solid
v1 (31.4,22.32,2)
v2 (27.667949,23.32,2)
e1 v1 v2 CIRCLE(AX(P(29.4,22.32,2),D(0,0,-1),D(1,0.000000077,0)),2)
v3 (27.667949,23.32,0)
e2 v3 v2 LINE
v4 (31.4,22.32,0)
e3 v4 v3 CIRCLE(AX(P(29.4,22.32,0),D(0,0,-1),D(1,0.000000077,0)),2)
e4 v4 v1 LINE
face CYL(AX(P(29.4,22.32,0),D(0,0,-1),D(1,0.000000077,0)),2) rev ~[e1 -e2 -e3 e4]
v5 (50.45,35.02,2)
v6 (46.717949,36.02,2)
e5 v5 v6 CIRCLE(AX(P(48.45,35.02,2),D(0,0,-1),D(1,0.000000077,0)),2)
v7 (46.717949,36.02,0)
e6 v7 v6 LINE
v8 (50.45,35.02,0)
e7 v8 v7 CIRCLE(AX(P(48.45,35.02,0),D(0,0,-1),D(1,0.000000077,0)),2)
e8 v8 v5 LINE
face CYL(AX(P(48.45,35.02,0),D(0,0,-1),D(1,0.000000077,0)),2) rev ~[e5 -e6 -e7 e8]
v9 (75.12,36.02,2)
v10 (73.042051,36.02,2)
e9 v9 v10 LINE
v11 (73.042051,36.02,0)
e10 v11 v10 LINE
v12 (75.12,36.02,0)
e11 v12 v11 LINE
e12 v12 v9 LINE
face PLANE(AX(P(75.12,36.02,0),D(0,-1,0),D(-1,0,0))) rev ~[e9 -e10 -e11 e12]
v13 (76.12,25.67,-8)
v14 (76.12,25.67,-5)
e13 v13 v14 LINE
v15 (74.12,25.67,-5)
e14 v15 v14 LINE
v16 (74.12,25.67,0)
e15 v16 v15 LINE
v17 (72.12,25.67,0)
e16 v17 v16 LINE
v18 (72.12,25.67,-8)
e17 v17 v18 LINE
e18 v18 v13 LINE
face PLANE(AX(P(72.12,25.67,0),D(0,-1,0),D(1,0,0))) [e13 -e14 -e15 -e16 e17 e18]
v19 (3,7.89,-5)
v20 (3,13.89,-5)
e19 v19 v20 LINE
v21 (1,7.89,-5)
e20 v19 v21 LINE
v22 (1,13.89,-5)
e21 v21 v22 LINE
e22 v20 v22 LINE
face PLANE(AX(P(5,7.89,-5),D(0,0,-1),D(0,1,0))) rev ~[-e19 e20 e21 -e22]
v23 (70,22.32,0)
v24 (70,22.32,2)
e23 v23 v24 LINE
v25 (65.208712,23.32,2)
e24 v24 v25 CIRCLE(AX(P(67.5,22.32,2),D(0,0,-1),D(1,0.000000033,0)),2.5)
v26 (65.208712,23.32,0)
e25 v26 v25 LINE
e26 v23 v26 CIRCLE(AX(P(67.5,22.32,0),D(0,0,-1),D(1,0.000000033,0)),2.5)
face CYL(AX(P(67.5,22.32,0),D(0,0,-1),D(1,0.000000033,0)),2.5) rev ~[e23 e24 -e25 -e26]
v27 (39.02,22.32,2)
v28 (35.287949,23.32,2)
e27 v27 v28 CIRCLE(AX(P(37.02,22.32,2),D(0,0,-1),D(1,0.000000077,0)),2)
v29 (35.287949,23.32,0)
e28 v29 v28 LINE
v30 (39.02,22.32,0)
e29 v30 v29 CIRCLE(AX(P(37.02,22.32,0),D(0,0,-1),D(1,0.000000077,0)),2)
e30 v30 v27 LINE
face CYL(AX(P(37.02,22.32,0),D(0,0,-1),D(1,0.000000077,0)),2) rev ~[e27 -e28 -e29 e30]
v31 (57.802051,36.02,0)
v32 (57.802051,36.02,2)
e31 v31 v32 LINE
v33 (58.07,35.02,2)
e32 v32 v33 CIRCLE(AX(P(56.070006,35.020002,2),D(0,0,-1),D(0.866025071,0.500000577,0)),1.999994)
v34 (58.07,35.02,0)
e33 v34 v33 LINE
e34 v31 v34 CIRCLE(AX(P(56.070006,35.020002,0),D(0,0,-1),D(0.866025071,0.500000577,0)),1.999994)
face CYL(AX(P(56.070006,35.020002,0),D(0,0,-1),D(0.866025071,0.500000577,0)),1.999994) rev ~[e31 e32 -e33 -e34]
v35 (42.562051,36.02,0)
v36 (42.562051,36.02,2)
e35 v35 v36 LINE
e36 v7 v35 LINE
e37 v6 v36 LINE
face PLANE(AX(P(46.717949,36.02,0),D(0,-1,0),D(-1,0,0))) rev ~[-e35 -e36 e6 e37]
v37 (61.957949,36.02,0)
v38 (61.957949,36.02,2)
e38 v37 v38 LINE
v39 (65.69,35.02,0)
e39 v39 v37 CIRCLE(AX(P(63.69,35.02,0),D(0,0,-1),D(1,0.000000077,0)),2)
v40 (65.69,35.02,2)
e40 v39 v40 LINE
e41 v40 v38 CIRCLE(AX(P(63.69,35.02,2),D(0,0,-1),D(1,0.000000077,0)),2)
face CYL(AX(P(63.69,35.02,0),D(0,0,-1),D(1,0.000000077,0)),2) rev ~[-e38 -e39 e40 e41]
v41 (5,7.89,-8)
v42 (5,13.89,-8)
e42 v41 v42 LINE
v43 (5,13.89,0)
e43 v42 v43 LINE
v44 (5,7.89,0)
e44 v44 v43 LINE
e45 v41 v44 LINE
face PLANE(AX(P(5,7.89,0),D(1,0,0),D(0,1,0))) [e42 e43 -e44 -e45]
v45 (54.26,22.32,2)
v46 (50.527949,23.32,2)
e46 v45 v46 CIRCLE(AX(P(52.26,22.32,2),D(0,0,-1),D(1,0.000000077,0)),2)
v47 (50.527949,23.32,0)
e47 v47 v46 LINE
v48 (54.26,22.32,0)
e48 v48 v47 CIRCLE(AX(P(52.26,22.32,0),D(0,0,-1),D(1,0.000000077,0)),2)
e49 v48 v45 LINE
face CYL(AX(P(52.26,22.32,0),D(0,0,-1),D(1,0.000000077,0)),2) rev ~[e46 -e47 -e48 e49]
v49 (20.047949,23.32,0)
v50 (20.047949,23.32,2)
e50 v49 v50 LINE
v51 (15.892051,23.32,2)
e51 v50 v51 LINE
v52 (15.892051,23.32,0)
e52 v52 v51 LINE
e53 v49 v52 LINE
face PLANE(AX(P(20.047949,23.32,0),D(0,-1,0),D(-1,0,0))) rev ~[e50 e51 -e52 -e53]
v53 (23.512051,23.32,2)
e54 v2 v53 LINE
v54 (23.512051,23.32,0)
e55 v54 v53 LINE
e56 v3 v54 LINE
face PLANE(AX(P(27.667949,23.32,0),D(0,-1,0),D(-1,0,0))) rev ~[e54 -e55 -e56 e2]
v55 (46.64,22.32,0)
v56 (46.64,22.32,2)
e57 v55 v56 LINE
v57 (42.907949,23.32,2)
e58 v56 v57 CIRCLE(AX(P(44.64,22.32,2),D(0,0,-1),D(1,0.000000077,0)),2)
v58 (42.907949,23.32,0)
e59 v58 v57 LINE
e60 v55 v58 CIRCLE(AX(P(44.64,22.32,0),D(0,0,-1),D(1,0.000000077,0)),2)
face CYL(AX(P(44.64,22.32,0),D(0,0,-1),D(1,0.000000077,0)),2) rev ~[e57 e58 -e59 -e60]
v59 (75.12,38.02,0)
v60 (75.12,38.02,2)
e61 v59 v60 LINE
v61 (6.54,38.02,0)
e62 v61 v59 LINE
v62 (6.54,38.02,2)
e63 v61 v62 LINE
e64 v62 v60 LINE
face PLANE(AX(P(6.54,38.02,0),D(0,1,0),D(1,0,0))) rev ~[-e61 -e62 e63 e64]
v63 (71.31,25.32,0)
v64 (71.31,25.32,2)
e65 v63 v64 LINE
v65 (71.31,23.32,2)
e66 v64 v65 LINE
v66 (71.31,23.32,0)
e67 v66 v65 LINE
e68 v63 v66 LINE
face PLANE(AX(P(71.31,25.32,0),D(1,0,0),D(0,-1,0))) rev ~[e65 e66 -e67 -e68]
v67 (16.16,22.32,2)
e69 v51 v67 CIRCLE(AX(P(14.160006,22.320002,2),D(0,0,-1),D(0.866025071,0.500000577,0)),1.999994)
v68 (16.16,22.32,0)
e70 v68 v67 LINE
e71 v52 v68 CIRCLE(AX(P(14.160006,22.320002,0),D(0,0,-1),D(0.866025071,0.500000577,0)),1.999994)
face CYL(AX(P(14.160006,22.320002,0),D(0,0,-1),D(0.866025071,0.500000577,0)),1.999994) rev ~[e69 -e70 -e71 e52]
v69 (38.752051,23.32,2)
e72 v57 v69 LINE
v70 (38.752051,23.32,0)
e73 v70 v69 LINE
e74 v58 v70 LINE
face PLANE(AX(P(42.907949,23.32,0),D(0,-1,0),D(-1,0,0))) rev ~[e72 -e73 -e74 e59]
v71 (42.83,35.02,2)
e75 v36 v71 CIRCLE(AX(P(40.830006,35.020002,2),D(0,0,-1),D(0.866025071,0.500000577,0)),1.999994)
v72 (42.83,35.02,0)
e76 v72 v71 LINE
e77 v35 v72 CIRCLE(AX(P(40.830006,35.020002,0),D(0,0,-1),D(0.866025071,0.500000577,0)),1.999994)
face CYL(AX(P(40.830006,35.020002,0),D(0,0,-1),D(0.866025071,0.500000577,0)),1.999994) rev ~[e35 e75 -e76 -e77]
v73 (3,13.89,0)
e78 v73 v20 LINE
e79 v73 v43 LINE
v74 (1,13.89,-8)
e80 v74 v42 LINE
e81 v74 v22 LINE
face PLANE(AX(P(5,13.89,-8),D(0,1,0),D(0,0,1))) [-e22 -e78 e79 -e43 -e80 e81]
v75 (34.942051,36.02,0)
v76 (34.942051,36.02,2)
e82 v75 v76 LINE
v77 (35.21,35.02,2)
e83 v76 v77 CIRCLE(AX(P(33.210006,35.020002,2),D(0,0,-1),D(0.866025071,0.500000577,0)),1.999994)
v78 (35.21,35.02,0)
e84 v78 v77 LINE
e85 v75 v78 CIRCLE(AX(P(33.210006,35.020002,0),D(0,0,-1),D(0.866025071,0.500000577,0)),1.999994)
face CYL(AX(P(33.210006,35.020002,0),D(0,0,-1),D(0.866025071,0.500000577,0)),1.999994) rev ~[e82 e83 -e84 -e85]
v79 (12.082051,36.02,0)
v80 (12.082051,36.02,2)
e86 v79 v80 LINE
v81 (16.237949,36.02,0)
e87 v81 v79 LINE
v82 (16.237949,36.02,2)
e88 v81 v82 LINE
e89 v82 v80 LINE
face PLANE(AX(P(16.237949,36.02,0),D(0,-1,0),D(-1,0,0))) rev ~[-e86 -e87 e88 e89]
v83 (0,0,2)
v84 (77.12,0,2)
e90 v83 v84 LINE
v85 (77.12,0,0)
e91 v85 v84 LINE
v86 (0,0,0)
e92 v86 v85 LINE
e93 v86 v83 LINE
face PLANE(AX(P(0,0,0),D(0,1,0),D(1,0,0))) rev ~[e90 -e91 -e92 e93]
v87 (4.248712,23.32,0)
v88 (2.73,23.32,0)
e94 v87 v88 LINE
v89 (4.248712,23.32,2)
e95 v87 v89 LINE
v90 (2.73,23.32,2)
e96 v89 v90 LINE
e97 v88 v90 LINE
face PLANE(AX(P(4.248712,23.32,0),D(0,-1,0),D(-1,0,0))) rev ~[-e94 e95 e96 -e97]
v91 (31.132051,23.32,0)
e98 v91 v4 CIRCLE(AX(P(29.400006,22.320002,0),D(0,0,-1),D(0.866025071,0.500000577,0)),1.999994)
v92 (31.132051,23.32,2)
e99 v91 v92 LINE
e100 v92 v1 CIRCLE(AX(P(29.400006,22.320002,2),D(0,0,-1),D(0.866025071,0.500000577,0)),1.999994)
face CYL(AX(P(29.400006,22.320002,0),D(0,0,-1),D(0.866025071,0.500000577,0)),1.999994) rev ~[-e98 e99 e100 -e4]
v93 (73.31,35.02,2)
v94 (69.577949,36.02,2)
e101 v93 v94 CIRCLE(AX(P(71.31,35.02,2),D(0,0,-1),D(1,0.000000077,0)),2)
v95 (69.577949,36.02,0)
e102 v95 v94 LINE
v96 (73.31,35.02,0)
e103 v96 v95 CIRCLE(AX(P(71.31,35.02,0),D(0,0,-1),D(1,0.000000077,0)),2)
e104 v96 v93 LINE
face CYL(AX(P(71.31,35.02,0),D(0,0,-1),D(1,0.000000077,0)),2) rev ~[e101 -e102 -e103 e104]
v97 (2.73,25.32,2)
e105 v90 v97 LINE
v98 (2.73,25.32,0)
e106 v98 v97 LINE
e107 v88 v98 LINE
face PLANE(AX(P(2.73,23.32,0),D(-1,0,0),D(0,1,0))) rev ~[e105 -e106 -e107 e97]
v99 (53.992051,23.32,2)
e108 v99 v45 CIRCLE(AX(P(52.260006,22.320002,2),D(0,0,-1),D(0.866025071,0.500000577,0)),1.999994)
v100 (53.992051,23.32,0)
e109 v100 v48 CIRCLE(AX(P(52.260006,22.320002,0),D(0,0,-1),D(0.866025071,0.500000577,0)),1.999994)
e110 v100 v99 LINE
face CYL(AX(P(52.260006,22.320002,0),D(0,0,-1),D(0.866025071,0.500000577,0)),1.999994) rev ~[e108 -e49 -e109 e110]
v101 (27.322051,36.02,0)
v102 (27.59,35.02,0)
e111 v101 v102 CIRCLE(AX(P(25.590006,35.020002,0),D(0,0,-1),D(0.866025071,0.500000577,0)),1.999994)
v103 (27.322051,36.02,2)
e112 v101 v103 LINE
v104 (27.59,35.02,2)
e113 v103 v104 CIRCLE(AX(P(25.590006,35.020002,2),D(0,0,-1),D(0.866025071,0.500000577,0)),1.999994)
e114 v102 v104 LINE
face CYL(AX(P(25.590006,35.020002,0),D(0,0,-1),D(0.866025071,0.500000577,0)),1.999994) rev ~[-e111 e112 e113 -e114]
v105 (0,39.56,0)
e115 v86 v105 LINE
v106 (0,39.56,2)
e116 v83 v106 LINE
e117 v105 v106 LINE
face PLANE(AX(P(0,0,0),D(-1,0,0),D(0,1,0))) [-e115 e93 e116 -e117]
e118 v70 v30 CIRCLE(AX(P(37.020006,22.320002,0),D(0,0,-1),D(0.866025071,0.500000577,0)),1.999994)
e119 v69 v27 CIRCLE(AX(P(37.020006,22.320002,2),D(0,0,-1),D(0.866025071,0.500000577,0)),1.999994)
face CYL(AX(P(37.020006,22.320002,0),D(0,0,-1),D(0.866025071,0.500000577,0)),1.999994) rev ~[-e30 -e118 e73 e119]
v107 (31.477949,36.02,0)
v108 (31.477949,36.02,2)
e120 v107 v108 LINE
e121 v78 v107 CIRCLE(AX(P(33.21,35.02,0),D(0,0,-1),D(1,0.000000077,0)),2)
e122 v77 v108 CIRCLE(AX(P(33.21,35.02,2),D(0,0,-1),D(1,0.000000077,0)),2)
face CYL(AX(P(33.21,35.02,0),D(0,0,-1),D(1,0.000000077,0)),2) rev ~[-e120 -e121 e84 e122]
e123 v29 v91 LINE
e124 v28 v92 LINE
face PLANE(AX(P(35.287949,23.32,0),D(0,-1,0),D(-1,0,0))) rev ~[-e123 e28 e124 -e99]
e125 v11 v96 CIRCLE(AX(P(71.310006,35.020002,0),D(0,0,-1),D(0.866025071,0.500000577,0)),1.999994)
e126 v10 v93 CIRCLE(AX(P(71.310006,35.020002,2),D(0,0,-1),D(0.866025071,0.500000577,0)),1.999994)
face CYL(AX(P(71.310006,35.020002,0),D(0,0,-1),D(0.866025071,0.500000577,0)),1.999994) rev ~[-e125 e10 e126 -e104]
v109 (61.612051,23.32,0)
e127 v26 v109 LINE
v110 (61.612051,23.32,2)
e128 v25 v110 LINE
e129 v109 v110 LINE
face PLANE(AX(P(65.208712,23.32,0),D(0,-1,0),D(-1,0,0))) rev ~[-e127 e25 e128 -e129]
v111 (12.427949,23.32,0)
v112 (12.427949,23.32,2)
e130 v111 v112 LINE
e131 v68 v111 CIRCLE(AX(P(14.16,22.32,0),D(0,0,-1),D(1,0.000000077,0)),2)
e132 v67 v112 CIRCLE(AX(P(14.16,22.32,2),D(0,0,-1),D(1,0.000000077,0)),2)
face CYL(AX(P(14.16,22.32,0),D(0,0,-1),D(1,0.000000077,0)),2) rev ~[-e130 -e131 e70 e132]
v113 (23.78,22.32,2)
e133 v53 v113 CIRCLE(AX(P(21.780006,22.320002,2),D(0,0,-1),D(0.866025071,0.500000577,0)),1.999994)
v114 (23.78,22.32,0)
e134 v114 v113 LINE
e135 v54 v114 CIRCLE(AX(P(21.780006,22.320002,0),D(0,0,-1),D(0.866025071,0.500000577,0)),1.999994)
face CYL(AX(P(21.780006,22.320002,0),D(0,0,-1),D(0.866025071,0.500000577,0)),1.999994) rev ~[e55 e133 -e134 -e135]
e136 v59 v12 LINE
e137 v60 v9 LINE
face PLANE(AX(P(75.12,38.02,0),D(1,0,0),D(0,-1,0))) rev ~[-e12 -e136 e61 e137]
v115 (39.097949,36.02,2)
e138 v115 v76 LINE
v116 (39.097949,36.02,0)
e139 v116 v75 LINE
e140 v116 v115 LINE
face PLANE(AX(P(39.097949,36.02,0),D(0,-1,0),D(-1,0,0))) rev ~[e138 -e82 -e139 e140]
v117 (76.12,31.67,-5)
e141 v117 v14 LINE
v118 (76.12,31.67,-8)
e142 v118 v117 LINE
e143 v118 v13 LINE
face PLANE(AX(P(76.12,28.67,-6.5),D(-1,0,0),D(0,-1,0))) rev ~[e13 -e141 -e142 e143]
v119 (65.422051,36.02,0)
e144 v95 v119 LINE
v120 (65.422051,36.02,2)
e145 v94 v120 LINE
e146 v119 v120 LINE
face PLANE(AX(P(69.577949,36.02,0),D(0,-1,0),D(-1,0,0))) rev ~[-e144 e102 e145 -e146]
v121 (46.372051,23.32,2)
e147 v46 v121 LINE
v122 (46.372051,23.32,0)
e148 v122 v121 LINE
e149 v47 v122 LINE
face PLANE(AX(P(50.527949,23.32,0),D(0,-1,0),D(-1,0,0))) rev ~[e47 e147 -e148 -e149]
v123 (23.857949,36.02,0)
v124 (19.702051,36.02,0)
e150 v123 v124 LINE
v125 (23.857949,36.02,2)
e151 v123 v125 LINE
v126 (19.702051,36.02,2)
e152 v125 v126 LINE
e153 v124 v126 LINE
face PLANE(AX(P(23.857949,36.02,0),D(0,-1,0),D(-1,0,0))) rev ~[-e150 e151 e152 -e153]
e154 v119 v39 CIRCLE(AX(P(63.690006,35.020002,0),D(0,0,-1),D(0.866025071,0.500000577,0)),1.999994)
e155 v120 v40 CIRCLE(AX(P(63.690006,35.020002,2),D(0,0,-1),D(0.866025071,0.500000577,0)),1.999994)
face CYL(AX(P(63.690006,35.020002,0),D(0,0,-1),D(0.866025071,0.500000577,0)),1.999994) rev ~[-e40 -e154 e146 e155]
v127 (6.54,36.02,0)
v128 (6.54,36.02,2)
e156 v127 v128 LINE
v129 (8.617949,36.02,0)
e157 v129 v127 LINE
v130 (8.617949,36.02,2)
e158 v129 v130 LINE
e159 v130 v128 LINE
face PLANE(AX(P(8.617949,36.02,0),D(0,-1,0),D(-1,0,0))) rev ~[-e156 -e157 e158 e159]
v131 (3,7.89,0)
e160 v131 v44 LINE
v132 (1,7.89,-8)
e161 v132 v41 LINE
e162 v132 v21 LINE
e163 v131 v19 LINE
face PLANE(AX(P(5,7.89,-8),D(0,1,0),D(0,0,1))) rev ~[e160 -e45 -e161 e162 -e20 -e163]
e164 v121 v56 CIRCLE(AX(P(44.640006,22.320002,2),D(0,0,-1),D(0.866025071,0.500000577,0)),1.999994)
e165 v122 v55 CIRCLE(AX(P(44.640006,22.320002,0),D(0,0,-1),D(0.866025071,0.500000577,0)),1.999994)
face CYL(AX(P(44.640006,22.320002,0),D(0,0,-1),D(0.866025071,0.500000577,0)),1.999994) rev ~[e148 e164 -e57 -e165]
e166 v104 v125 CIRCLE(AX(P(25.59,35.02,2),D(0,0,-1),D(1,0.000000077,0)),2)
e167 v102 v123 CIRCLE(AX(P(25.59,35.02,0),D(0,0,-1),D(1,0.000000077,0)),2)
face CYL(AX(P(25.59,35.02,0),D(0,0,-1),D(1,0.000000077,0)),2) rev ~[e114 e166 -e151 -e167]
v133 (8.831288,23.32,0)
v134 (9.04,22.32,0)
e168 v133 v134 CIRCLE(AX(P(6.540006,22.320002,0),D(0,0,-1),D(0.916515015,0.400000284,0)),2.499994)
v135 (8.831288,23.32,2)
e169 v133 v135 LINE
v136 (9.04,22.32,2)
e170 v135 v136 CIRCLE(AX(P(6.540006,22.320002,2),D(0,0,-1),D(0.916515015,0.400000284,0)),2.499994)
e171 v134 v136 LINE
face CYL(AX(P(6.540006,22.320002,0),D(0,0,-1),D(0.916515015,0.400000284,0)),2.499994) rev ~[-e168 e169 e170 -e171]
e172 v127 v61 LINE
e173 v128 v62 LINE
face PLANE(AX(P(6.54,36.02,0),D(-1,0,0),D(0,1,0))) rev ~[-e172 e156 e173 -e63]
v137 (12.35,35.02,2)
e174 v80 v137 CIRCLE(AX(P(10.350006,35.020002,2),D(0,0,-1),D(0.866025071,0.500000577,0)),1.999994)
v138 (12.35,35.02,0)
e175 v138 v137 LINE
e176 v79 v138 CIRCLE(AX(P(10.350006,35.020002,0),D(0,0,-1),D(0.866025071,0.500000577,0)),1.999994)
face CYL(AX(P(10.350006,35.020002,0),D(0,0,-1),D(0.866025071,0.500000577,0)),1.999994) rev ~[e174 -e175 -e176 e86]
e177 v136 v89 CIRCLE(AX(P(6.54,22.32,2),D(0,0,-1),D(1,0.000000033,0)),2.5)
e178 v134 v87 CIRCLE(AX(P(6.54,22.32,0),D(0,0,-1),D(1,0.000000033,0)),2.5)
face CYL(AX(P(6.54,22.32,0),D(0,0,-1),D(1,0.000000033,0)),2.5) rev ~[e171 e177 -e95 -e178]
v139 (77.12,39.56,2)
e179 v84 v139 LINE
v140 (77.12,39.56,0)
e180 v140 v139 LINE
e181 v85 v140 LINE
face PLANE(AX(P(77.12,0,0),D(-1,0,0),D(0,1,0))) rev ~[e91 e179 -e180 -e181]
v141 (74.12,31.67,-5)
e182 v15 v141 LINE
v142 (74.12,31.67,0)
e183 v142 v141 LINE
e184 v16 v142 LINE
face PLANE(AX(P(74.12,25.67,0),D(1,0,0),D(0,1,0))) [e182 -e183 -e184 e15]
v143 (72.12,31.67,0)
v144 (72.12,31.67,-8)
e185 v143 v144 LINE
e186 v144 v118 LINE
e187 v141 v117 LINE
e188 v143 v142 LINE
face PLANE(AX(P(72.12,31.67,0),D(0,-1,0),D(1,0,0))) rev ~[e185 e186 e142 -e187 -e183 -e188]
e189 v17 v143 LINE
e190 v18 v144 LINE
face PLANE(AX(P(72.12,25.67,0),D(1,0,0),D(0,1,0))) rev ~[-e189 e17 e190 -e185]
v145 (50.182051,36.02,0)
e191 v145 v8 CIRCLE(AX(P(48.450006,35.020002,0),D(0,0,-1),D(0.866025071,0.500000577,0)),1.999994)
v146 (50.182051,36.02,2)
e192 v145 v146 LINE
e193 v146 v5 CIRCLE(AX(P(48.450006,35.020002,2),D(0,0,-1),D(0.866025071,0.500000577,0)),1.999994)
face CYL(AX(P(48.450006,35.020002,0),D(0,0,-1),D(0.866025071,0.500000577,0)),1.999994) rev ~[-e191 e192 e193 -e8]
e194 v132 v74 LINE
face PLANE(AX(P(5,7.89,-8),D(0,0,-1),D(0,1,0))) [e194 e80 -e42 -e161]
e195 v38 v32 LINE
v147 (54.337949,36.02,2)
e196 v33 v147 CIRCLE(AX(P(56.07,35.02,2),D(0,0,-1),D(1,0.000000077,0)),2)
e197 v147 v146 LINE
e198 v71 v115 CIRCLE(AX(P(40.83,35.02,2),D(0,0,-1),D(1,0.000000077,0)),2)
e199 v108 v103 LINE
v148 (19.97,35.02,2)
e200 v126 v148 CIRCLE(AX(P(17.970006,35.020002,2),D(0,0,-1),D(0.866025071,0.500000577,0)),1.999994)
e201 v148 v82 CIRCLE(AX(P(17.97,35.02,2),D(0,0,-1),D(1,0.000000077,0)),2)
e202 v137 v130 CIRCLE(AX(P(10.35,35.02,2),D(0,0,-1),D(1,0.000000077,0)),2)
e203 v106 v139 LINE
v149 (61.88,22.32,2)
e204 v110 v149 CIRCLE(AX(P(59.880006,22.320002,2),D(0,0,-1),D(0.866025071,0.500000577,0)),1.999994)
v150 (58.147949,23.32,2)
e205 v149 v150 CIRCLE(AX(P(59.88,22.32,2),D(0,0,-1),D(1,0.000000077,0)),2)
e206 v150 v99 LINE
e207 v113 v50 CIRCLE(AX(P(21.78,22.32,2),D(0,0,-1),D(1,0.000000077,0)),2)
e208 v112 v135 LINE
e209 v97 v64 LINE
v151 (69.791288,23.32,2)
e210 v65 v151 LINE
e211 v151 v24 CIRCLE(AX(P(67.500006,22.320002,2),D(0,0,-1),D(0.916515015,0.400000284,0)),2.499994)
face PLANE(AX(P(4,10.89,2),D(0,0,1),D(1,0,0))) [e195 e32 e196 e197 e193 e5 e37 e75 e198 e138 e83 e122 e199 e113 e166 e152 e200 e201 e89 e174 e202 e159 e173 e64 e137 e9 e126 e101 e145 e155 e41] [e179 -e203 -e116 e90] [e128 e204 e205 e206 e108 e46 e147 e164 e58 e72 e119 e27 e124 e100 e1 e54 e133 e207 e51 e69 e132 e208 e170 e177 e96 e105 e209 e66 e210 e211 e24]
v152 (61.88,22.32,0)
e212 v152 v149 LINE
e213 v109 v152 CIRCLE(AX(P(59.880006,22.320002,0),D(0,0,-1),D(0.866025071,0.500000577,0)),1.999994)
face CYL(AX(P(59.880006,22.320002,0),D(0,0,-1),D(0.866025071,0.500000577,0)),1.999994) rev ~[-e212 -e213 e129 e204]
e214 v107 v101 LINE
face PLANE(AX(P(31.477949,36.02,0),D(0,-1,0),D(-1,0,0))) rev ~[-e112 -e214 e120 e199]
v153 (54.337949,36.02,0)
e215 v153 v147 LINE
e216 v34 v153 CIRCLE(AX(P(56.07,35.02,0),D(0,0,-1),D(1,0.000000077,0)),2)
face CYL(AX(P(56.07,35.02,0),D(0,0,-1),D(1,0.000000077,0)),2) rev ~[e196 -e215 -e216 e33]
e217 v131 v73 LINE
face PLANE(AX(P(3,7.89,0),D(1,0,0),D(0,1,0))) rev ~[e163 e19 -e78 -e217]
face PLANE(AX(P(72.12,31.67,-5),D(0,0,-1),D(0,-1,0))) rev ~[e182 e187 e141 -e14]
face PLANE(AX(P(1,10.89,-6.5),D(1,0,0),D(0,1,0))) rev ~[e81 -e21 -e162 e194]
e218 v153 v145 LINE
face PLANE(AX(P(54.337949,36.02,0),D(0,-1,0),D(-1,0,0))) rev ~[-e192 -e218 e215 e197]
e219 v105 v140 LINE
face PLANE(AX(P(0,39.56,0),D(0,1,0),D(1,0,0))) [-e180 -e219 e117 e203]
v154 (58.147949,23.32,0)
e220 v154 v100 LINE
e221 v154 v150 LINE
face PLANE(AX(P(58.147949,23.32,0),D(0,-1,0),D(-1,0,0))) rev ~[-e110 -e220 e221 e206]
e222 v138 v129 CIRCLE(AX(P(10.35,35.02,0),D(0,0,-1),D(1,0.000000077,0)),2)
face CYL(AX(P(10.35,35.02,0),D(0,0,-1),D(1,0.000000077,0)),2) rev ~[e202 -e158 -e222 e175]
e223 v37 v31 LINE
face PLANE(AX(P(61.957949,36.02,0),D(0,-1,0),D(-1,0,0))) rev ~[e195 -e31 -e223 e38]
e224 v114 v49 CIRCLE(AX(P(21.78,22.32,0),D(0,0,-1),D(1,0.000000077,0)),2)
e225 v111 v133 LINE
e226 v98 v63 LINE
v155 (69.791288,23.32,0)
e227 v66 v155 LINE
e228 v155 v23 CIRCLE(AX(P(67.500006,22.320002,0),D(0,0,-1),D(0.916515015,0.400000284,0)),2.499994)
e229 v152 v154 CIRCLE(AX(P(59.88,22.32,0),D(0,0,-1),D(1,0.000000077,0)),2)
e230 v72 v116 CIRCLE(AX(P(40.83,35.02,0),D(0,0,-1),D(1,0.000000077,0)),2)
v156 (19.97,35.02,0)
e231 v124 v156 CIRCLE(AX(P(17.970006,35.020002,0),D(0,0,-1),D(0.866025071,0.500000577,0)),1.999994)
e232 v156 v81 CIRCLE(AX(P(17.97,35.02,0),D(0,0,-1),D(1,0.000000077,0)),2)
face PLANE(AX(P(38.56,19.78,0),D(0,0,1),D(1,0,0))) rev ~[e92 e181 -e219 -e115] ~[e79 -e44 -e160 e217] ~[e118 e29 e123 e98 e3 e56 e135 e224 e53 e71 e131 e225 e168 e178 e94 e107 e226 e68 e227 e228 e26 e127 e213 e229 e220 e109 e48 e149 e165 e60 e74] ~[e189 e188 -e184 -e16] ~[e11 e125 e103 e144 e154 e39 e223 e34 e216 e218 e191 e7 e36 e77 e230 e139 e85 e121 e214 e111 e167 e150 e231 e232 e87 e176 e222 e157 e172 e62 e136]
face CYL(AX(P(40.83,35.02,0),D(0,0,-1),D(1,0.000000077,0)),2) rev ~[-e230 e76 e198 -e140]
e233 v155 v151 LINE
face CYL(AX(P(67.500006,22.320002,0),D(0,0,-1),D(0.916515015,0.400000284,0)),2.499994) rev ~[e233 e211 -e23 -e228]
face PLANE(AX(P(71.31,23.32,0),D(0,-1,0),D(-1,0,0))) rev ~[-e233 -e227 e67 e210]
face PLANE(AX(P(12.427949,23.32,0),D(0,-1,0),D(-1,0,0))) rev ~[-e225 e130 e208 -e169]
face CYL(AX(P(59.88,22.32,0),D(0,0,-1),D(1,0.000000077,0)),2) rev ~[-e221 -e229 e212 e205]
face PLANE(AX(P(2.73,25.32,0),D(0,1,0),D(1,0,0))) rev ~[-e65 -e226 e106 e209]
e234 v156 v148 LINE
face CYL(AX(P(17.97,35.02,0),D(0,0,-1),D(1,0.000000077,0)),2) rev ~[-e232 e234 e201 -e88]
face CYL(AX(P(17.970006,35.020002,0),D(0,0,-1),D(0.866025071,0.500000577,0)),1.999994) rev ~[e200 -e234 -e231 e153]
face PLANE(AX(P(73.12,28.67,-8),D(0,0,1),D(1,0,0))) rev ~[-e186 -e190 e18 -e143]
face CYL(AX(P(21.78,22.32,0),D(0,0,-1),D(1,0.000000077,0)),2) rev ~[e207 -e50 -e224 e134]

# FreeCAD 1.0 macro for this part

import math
import FreeCAD as App
import Part
import Sketcher
from FreeCAD import Vector
Q = App.Units.Quantity


def add_polygon(sketch, points):
    """Adds a closed chain of lines whose ends are joined by coincident constraints."""
    first, n = sketch.GeometryCount, len(points)
    for a, b in zip(points, points[1:] + points[:1]):
        sketch.addGeometry(Part.LineSegment(App.Vector(*a, 0), App.Vector(*b, 0)), False)
    for i in range(n):
        sketch.addConstraint(Sketcher.Constraint("Coincident", first + i, 2, first + (i + 1) % n, 1))

doc = App.newDocument("Part")
body = doc.addObject("PartDesign::Body", "Body")

# Sketch on XY plane
sketch1 = body.newObject("Sketcher::SketchObject", "Sketch")
sketch1.AttachmentSupport = (doc.getObject("XY_Plane"), [""])
sketch1.MapMode = "FlatFace"
add_polygon(sketch1, [(0, 39.6), (0, 0), (77.1, 0), (77.1, 39.6)])  # lines 0-3
add_polygon(sketch1, [(5, 7.9), (3, 7.9), (3, 13.9), (5, 13.9)])  # lines 4-7
sketch1.addGeometry(Part.LineSegment(Vector(20, 23.3, 0), Vector(15.9, 23.3, 0)), False)  # 8
sketch1.addGeometry(Part.ArcOfCircle(Part.Circle(Vector(14.2, 22.3, 0), Vector(0, 0, 1), 2), math.radians(0), math.radians(30)), False)  # 9
sketch1.addGeometry(Part.ArcOfCircle(Part.Circle(Vector(14.2, 22.3, 0), Vector(0, 0, 1), 2), math.radians(150), math.radians(360)), False)  # 10
sketch1.addGeometry(Part.LineSegment(Vector(12.4, 23.3, 0), Vector(8.8, 23.3, 0)), False)  # 11
sketch1.addGeometry(Part.ArcOfCircle(Part.Circle(Vector(6.5, 22.3, 0), Vector(0, 0, 1), 2.5), math.radians(0), math.radians(24)), False)  # 12
sketch1.addGeometry(Part.ArcOfCircle(Part.Circle(Vector(6.5, 22.3, 0), Vector(0, 0, 1), 2.5), math.radians(156), math.radians(360)), False)  # 13
sketch1.addGeometry(Part.LineSegment(Vector(4.2, 23.3, 0), Vector(2.7, 23.3, 0)), False)  # 14
sketch1.addGeometry(Part.LineSegment(Vector(2.7, 23.3, 0), Vector(2.7, 25.3, 0)), False)  # 15
sketch1.addGeometry(Part.LineSegment(Vector(2.7, 25.3, 0), Vector(71.3, 25.3, 0)), False)  # 16
sketch1.addGeometry(Part.LineSegment(Vector(71.3, 25.3, 0), Vector(71.3, 23.3, 0)), False)  # 17
sketch1.addGeometry(Part.LineSegment(Vector(71.3, 23.3, 0), Vector(69.8, 23.3, 0)), False)  # 18
sketch1.addGeometry(Part.ArcOfCircle(Part.Circle(Vector(67.5, 22.3, 0), Vector(0, 0, 1), 2.5), math.radians(0), math.radians(24)), False)  # 19
sketch1.addGeometry(Part.ArcOfCircle(Part.Circle(Vector(67.5, 22.3, 0), Vector(0, 0, 1), 2.5), math.radians(156), math.radians(360)), False)  # 20
sketch1.addGeometry(Part.LineSegment(Vector(65.2, 23.3, 0), Vector(61.6, 23.3, 0)), False)  # 21
sketch1.addGeometry(Part.ArcOfCircle(Part.Circle(Vector(59.9, 22.3, 0), Vector(0, 0, 1), 2), math.radians(0), math.radians(30)), False)  # 22
sketch1.addGeometry(Part.ArcOfCircle(Part.Circle(Vector(59.9, 22.3, 0), Vector(0, 0, 1), 2), math.radians(150), math.radians(360)), False)  # 23
sketch1.addGeometry(Part.LineSegment(Vector(58.1, 23.3, 0), Vector(54, 23.3, 0)), False)  # 24
sketch1.addGeometry(Part.ArcOfCircle(Part.Circle(Vector(52.3, 22.3, 0), Vector(0, 0, 1), 2), math.radians(0), math.radians(30)), False)  # 25
sketch1.addGeometry(Part.ArcOfCircle(Part.Circle(Vector(52.3, 22.3, 0), Vector(0, 0, 1), 2), math.radians(150), math.radians(360)), False)  # 26
sketch1.addGeometry(Part.LineSegment(Vector(50.5, 23.3, 0), Vector(46.4, 23.3, 0)), False)  # 27
sketch1.addGeometry(Part.ArcOfCircle(Part.Circle(Vector(44.6, 22.3, 0), Vector(0, 0, 1), 2), math.radians(0), math.radians(30)), False)  # 28
sketch1.addGeometry(Part.ArcOfCircle(Part.Circle(Vector(44.6, 22.3, 0), Vector(0, 0, 1), 2), math.radians(150), math.radians(360)), False)  # 29
sketch1.addGeometry(Part.LineSegment(Vector(42.9, 23.3, 0), Vector(38.8, 23.3, 0)), False)  # 30
sketch1.addGeometry(Part.ArcOfCircle(Part.Circle(Vector(37, 22.3, 0), Vector(0, 0, 1), 2), math.radians(0), math.radians(30)), False)  # 31
sketch1.addGeometry(Part.ArcOfCircle(Part.Circle(Vector(37, 22.3, 0), Vector(0, 0, 1), 2), math.radians(150), math.radians(360)), False)  # 32
sketch1.addGeometry(Part.LineSegment(Vector(35.3, 23.3, 0), Vector(31.1, 23.3, 0)), False)  # 33
sketch1.addGeometry(Part.ArcOfCircle(Part.Circle(Vector(29.4, 22.3, 0), Vector(0, 0, 1), 2), math.radians(0), math.radians(30)), False)  # 34
sketch1.addGeometry(Part.ArcOfCircle(Part.Circle(Vector(29.4, 22.3, 0), Vector(0, 0, 1), 2), math.radians(150), math.radians(360)), False)  # 35
sketch1.addGeometry(Part.LineSegment(Vector(27.7, 23.3, 0), Vector(23.5, 23.3, 0)), False)  # 36
sketch1.addGeometry(Part.ArcOfCircle(Part.Circle(Vector(21.8, 22.3, 0), Vector(0, 0, 1), 2), math.radians(0), math.radians(30)), False)  # 37
sketch1.addGeometry(Part.ArcOfCircle(Part.Circle(Vector(21.8, 22.3, 0), Vector(0, 0, 1), 2), math.radians(150), math.radians(360)), False)  # 38
add_polygon(sketch1, [(74.1, 25.7), (72.1, 25.7), (72.1, 31.7), (74.1, 31.7)])  # lines 39-42
sketch1.addGeometry(Part.LineSegment(Vector(16.2, 36, 0), Vector(12.1, 36, 0)), False)  # 43
sketch1.addGeometry(Part.ArcOfCircle(Part.Circle(Vector(10.4, 35, 0), Vector(0, 0, 1), 2), math.radians(0), math.radians(30)), False)  # 44
sketch1.addGeometry(Part.ArcOfCircle(Part.Circle(Vector(10.3, 35, 0), Vector(0, 0, 1), 2), math.radians(150), math.radians(360)), False)  # 45
sketch1.addGeometry(Part.LineSegment(Vector(8.6, 36, 0), Vector(6.5, 36, 0)), False)  # 46
sketch1.addGeometry(Part.LineSegment(Vector(6.5, 36, 0), Vector(6.5, 38, 0)), False)  # 47
sketch1.addGeometry(Part.LineSegment(Vector(6.5, 38, 0), Vector(75.1, 38, 0)), False)  # 48
sketch1.addGeometry(Part.LineSegment(Vector(75.1, 38, 0), Vector(75.1, 36, 0)), False)  # 49
sketch1.addGeometry(Part.LineSegment(Vector(75.1, 36, 0), Vector(73, 36, 0)), False)  # 50
sketch1.addGeometry(Part.ArcOfCircle(Part.Circle(Vector(71.3, 35, 0), Vector(0, 0, 1), 2), math.radians(0), math.radians(30)), False)  # 51
sketch1.addGeometry(Part.ArcOfCircle(Part.Circle(Vector(71.3, 35, 0), Vector(0, 0, 1), 2), math.radians(150), math.radians(360)), False)  # 52
sketch1.addGeometry(Part.LineSegment(Vector(69.6, 36, 0), Vector(65.4, 36, 0)), False)  # 53
sketch1.addGeometry(Part.ArcOfCircle(Part.Circle(Vector(63.7, 35, 0), Vector(0, 0, 1), 2), math.radians(0), math.radians(30)), False)  # 54
sketch1.addGeometry(Part.ArcOfCircle(Part.Circle(Vector(63.7, 35, 0), Vector(0, 0, 1), 2), math.radians(150), math.radians(360)), False)  # 55
sketch1.addGeometry(Part.LineSegment(Vector(62, 36, 0), Vector(57.8, 36, 0)), False)  # 56
sketch1.addGeometry(Part.ArcOfCircle(Part.Circle(Vector(56.1, 35, 0), Vector(0, 0, 1), 2), math.radians(0), math.radians(30)), False)  # 57
sketch1.addGeometry(Part.ArcOfCircle(Part.Circle(Vector(56.1, 35, 0), Vector(0, 0, 1), 2), math.radians(150), math.radians(360)), False)  # 58
sketch1.addGeometry(Part.LineSegment(Vector(54.3, 36, 0), Vector(50.2, 36, 0)), False)  # 59
sketch1.addGeometry(Part.ArcOfCircle(Part.Circle(Vector(48.5, 35, 0), Vector(0, 0, 1), 2), math.radians(0), math.radians(30)), False)  # 60
sketch1.addGeometry(Part.ArcOfCircle(Part.Circle(Vector(48.4, 35, 0), Vector(0, 0, 1), 2), math.radians(150), math.radians(360)), False)  # 61
sketch1.addGeometry(Part.LineSegment(Vector(46.7, 36, 0), Vector(42.6, 36, 0)), False)  # 62
sketch1.addGeometry(Part.ArcOfCircle(Part.Circle(Vector(40.8, 35, 0), Vector(0, 0, 1), 2), math.radians(0), math.radians(30)), False)  # 63
sketch1.addGeometry(Part.ArcOfCircle(Part.Circle(Vector(40.8, 35, 0), Vector(0, 0, 1), 2), math.radians(150), math.radians(360)), False)  # 64
sketch1.addGeometry(Part.LineSegment(Vector(39.1, 36, 0), Vector(34.9, 36, 0)), False)  # 65
sketch1.addGeometry(Part.ArcOfCircle(Part.Circle(Vector(33.2, 35, 0), Vector(0, 0, 1), 2), math.radians(0), math.radians(30)), False)  # 66
sketch1.addGeometry(Part.ArcOfCircle(Part.Circle(Vector(33.2, 35, 0), Vector(0, 0, 1), 2), math.radians(150), math.radians(360)), False)  # 67
sketch1.addGeometry(Part.LineSegment(Vector(31.5, 36, 0), Vector(27.3, 36, 0)), False)  # 68
sketch1.addGeometry(Part.ArcOfCircle(Part.Circle(Vector(25.6, 35, 0), Vector(0, 0, 1), 2), math.radians(0), math.radians(30)), False)  # 69
sketch1.addGeometry(Part.ArcOfCircle(Part.Circle(Vector(25.6, 35, 0), Vector(0, 0, 1), 2), math.radians(150), math.radians(360)), False)  # 70
sketch1.addGeometry(Part.LineSegment(Vector(23.9, 36, 0), Vector(19.7, 36, 0)), False)  # 71
sketch1.addGeometry(Part.ArcOfCircle(Part.Circle(Vector(18, 35, 0), Vector(0, 0, 1), 2), math.radians(0), math.radians(30)), False)  # 72
sketch1.addGeometry(Part.ArcOfCircle(Part.Circle(Vector(18, 35, 0), Vector(0, 0, 1), 2), math.radians(150), math.radians(360)), False)  # 73
sketch1.addConstraint(Sketcher.Constraint("Coincident", 8, 2, 9, 2))
sketch1.addConstraint(Sketcher.Constraint("Tangent", 9, 1, 10, 2))
sketch1.addConstraint(Sketcher.Constraint("Coincident", 10, 1, 11, 1))
sketch1.addConstraint(Sketcher.Constraint("Coincident", 11, 2, 12, 2))
sketch1.addConstraint(Sketcher.Constraint("Tangent", 12, 1, 13, 2))
sketch1.addConstraint(Sketcher.Constraint("Coincident", 13, 1, 14, 1))
sketch1.addConstraint(Sketcher.Constraint("Coincident", 14, 2, 15, 1))
sketch1.addConstraint(Sketcher.Constraint("Coincident", 15, 2, 16, 1))
sketch1.addConstraint(Sketcher.Constraint("Coincident", 16, 2, 17, 1))
sketch1.addConstraint(Sketcher.Constraint("Coincident", 17, 2, 18, 1))
sketch1.addConstraint(Sketcher.Constraint("Coincident", 18, 2, 19, 2))
sketch1.addConstraint(Sketcher.Constraint("Tangent", 19, 1, 20, 2))
sketch1.addConstraint(Sketcher.Constraint("Coincident", 20, 1, 21, 1))
sketch1.addConstraint(Sketcher.Constraint("Coincident", 21, 2, 22, 2))
sketch1.addConstraint(Sketcher.Constraint("Tangent", 22, 1, 23, 2))
sketch1.addConstraint(Sketcher.Constraint("Coincident", 23, 1, 24, 1))
sketch1.addConstraint(Sketcher.Constraint("Coincident", 24, 2, 25, 2))
sketch1.addConstraint(Sketcher.Constraint("Tangent", 25, 1, 26, 2))
sketch1.addConstraint(Sketcher.Constraint("Coincident", 26, 1, 27, 1))
sketch1.addConstraint(Sketcher.Constraint("Coincident", 27, 2, 28, 2))
sketch1.addConstraint(Sketcher.Constraint("Tangent", 28, 1, 29, 2))
sketch1.addConstraint(Sketcher.Constraint("Coincident", 29, 1, 30, 1))
sketch1.addConstraint(Sketcher.Constraint("Coincident", 30, 2, 31, 2))
sketch1.addConstraint(Sketcher.Constraint("Tangent", 31, 1, 32, 2))
sketch1.addConstraint(Sketcher.Constraint("Coincident", 32, 1, 33, 1))
sketch1.addConstraint(Sketcher.Constraint("Coincident", 33, 2, 34, 2))
sketch1.addConstraint(Sketcher.Constraint("Tangent", 34, 1, 35, 2))
sketch1.addConstraint(Sketcher.Constraint("Coincident", 35, 1, 36, 1))
sketch1.addConstraint(Sketcher.Constraint("Coincident", 36, 2, 37, 2))
sketch1.addConstraint(Sketcher.Constraint("Tangent", 37, 1, 38, 2))
sketch1.addConstraint(Sketcher.Constraint("Coincident", 38, 1, 8, 1))
sketch1.addConstraint(Sketcher.Constraint("Coincident", 43, 2, 44, 2))
sketch1.addConstraint(Sketcher.Constraint("Tangent", 44, 1, 45, 2))
sketch1.addConstraint(Sketcher.Constraint("Coincident", 45, 1, 46, 1))
sketch1.addConstraint(Sketcher.Constraint("Coincident", 46, 2, 47, 1))
sketch1.addConstraint(Sketcher.Constraint("Coincident", 47, 2, 48, 1))
sketch1.addConstraint(Sketcher.Constraint("Coincident", 48, 2, 49, 1))
sketch1.addConstraint(Sketcher.Constraint("Coincident", 49, 2, 50, 1))
sketch1.addConstraint(Sketcher.Constraint("Coincident", 50, 2, 51, 2))
sketch1.addConstraint(Sketcher.Constraint("Tangent", 51, 1, 52, 2))
sketch1.addConstraint(Sketcher.Constraint("Coincident", 52, 1, 53, 1))
sketch1.addConstraint(Sketcher.Constraint("Coincident", 53, 2, 54, 2))
sketch1.addConstraint(Sketcher.Constraint("Tangent", 54, 1, 55, 2))
sketch1.addConstraint(Sketcher.Constraint("Coincident", 55, 1, 56, 1))
sketch1.addConstraint(Sketcher.Constraint("Coincident", 56, 2, 57, 2))
sketch1.addConstraint(Sketcher.Constraint("Tangent", 57, 1, 58, 2))
sketch1.addConstraint(Sketcher.Constraint("Coincident", 58, 1, 59, 1))
sketch1.addConstraint(Sketcher.Constraint("Coincident", 59, 2, 60, 2))
sketch1.addConstraint(Sketcher.Constraint("Tangent", 60, 1, 61, 2))
sketch1.addConstraint(Sketcher.Constraint("Coincident", 61, 1, 62, 1))
sketch1.addConstraint(Sketcher.Constraint("Coincident", 62, 2, 63, 2))
sketch1.addConstraint(Sketcher.Constraint("Tangent", 63, 1, 64, 2))
sketch1.addConstraint(Sketcher.Constraint("Coincident", 64, 1, 65, 1))
sketch1.addConstraint(Sketcher.Constraint("Coincident", 65, 2, 66, 2))
sketch1.addConstraint(Sketcher.Constraint("Tangent", 66, 1, 67, 2))
sketch1.addConstraint(Sketcher.Constraint("Coincident", 67, 1, 68, 1))
sketch1.addConstraint(Sketcher.Constraint("Coincident", 68, 2, 69, 2))
sketch1.addConstraint(Sketcher.Constraint("Tangent", 69, 1, 70, 2))
sketch1.addConstraint(Sketcher.Constraint("Coincident", 70, 1, 71, 1))
sketch1.addConstraint(Sketcher.Constraint("Coincident", 71, 2, 72, 2))
sketch1.addConstraint(Sketcher.Constraint("Tangent", 72, 1, 73, 2))
sketch1.addConstraint(Sketcher.Constraint("Coincident", 73, 1, 43, 1))
sketch1.addConstraint(Sketcher.Constraint("Vertical", 0))
sketch1.addConstraint(Sketcher.Constraint("Horizontal", 1))
sketch1.addConstraint(Sketcher.Constraint("Vertical", 2))
sketch1.addConstraint(Sketcher.Constraint("Horizontal", 3))
sketch1.addConstraint(Sketcher.Constraint("Horizontal", 4))
sketch1.addConstraint(Sketcher.Constraint("Vertical", 5))
sketch1.addConstraint(Sketcher.Constraint("Horizontal", 6))
sketch1.addConstraint(Sketcher.Constraint("Vertical", 7))
sketch1.addConstraint(Sketcher.Constraint("Horizontal", 8))
sketch1.addConstraint(Sketcher.Constraint("Horizontal", 11))
sketch1.addConstraint(Sketcher.Constraint("Horizontal", 14))
sketch1.addConstraint(Sketcher.Constraint("Vertical", 15))
sketch1.addConstraint(Sketcher.Constraint("Horizontal", 16))
sketch1.addConstraint(Sketcher.Constraint("Vertical", 17))
sketch1.addConstraint(Sketcher.Constraint("Horizontal", 18))
sketch1.addConstraint(Sketcher.Constraint("Horizontal", 21))
sketch1.addConstraint(Sketcher.Constraint("Horizontal", 24))
sketch1.addConstraint(Sketcher.Constraint("Horizontal", 27))
sketch1.addConstraint(Sketcher.Constraint("Horizontal", 30))
sketch1.addConstraint(Sketcher.Constraint("Horizontal", 33))
sketch1.addConstraint(Sketcher.Constraint("Horizontal", 36))
sketch1.addConstraint(Sketcher.Constraint("Horizontal", 39))
sketch1.addConstraint(Sketcher.Constraint("Vertical", 40))
sketch1.addConstraint(Sketcher.Constraint("Horizontal", 41))
sketch1.addConstraint(Sketcher.Constraint("Vertical", 42))
sketch1.addConstraint(Sketcher.Constraint("Horizontal", 43))
sketch1.addConstraint(Sketcher.Constraint("Horizontal", 46))
sketch1.addConstraint(Sketcher.Constraint("Vertical", 47))
sketch1.addConstraint(Sketcher.Constraint("Horizontal", 48))
sketch1.addConstraint(Sketcher.Constraint("Vertical", 49))
sketch1.addConstraint(Sketcher.Constraint("Horizontal", 50))
sketch1.addConstraint(Sketcher.Constraint("Horizontal", 53))
sketch1.addConstraint(Sketcher.Constraint("Horizontal", 56))
sketch1.addConstraint(Sketcher.Constraint("Horizontal", 59))
sketch1.addConstraint(Sketcher.Constraint("Horizontal", 62))
sketch1.addConstraint(Sketcher.Constraint("Horizontal", 65))
sketch1.addConstraint(Sketcher.Constraint("Horizontal", 68))
sketch1.addConstraint(Sketcher.Constraint("Horizontal", 71))
sketch1.addConstraint(Sketcher.Constraint("Coincident", 0, 2, -1, 1))
sketch1.addConstraint(Sketcher.Constraint("Equal", 12, 19))
sketch1.addConstraint(Sketcher.Constraint("Equal", 13, 20))
sketch1.addConstraint(Sketcher.Constraint("Equal", 9, 22))
sketch1.addConstraint(Sketcher.Constraint("Equal", 10, 23))
sketch1.addConstraint(Sketcher.Constraint("Equal", 22, 25))
sketch1.addConstraint(Sketcher.Constraint("Equal", 23, 26))
sketch1.addConstraint(Sketcher.Constraint("Equal", 25, 28))
sketch1.addConstraint(Sketcher.Constraint("Equal", 26, 29))
sketch1.addConstraint(Sketcher.Constraint("Equal", 28, 31))
sketch1.addConstraint(Sketcher.Constraint("Equal", 29, 32))
sketch1.addConstraint(Sketcher.Constraint("Equal", 31, 34))
sketch1.addConstraint(Sketcher.Constraint("Equal", 32, 35))
sketch1.addConstraint(Sketcher.Constraint("Equal", 34, 37))
sketch1.addConstraint(Sketcher.Constraint("Equal", 35, 38))
sketch1.addConstraint(Sketcher.Constraint("Equal", 37, 44))
sketch1.addConstraint(Sketcher.Constraint("Equal", 38, 45))
sketch1.addConstraint(Sketcher.Constraint("Equal", 44, 51))
sketch1.addConstraint(Sketcher.Constraint("Equal", 45, 52))
sketch1.addConstraint(Sketcher.Constraint("Equal", 51, 54))
sketch1.addConstraint(Sketcher.Constraint("Equal", 52, 55))
sketch1.addConstraint(Sketcher.Constraint("Equal", 54, 57))
sketch1.addConstraint(Sketcher.Constraint("Equal", 55, 58))
sketch1.addConstraint(Sketcher.Constraint("Equal", 57, 60))
sketch1.addConstraint(Sketcher.Constraint("Equal", 58, 61))
sketch1.addConstraint(Sketcher.Constraint("Equal", 60, 63))
sketch1.addConstraint(Sketcher.Constraint("Equal", 61, 64))
sketch1.addConstraint(Sketcher.Constraint("Equal", 63, 66))
sketch1.addConstraint(Sketcher.Constraint("Equal", 64, 67))
sketch1.addConstraint(Sketcher.Constraint("Equal", 66, 69))
sketch1.addConstraint(Sketcher.Constraint("Equal", 67, 70))
sketch1.addConstraint(Sketcher.Constraint("Equal", 69, 72))
sketch1.addConstraint(Sketcher.Constraint("Equal", 70, 73))
sketch1.addConstraint(Sketcher.Constraint("Horizontal", 10, 3, 12, 3))
sketch1.addConstraint(Sketcher.Constraint("Horizontal", 13, 3, 19, 3))
sketch1.addConstraint(Sketcher.Constraint("Horizontal", 19, 3, 22, 3))
sketch1.addConstraint(Sketcher.Constraint("Horizontal", 22, 3, 25, 3))
sketch1.addConstraint(Sketcher.Constraint("Horizontal", 25, 3, 28, 3))
sketch1.addConstraint(Sketcher.Constraint("Horizontal", 28, 3, 31, 3))
sketch1.addConstraint(Sketcher.Constraint("Horizontal", 31, 3, 34, 3))
sketch1.addConstraint(Sketcher.Constraint("Horizontal", 34, 3, 37, 3))
sketch1.addConstraint(Sketcher.Constraint("Horizontal", 44, 3, 51, 3))
sketch1.addConstraint(Sketcher.Constraint("Horizontal", 51, 3, 54, 3))
sketch1.addConstraint(Sketcher.Constraint("Horizontal", 54, 3, 57, 3))
sketch1.addConstraint(Sketcher.Constraint("Horizontal", 57, 3, 60, 3))
sketch1.addConstraint(Sketcher.Constraint("Horizontal", 60, 3, 63, 3))
sketch1.addConstraint(Sketcher.Constraint("Horizontal", 63, 3, 66, 3))
sketch1.addConstraint(Sketcher.Constraint("Horizontal", 66, 3, 69, 3))
sketch1.addConstraint(Sketcher.Constraint("Horizontal", 69, 3, 72, 3))
sketch1.addConstraint(Sketcher.Constraint("Horizontal", 38, 3, 9, 1))
sketch1.addConstraint(Sketcher.Constraint("Horizontal", 8, 2, 10, 1))
sketch1.addConstraint(Sketcher.Constraint("Horizontal", 9, 1, 12, 1))
sketch1.addConstraint(Sketcher.Constraint("Horizontal", 11, 2, 13, 1))
sketch1.addConstraint(Sketcher.Constraint("Horizontal", 14, 2, 17, 2))
sketch1.addConstraint(Sketcher.Constraint("Horizontal", 12, 1, 19, 1))
sketch1.addConstraint(Sketcher.Constraint("Horizontal", 18, 2, 20, 1))
sketch1.addConstraint(Sketcher.Constraint("Horizontal", 19, 1, 22, 1))
sketch1.addConstraint(Sketcher.Constraint("Horizontal", 21, 2, 23, 1))
sketch1.addConstraint(Sketcher.Constraint("Horizontal", 22, 1, 25, 1))
sketch1.addConstraint(Sketcher.Constraint("Horizontal", 24, 2, 26, 1))
sketch1.addConstraint(Sketcher.Constraint("Horizontal", 25, 1, 28, 1))
sketch1.addConstraint(Sketcher.Constraint("Horizontal", 27, 2, 29, 1))
sketch1.addConstraint(Sketcher.Constraint("Horizontal", 28, 1, 31, 1))
sketch1.addConstraint(Sketcher.Constraint("Horizontal", 30, 2, 32, 1))
sketch1.addConstraint(Sketcher.Constraint("Horizontal", 31, 1, 34, 1))
sketch1.addConstraint(Sketcher.Constraint("Horizontal", 33, 2, 35, 1))
sketch1.addConstraint(Sketcher.Constraint("Horizontal", 34, 1, 37, 1))
sketch1.addConstraint(Sketcher.Constraint("Horizontal", 73, 3, 44, 1))
sketch1.addConstraint(Sketcher.Constraint("Horizontal", 43, 2, 45, 1))
sketch1.addConstraint(Sketcher.Constraint("Horizontal", 46, 2, 49, 2))
sketch1.addConstraint(Sketcher.Constraint("Horizontal", 44, 1, 51, 1))
sketch1.addConstraint(Sketcher.Constraint("Horizontal", 50, 2, 52, 1))
sketch1.addConstraint(Sketcher.Constraint("Horizontal", 51, 1, 54, 1))
sketch1.addConstraint(Sketcher.Constraint("Horizontal", 53, 2, 55, 1))
sketch1.addConstraint(Sketcher.Constraint("Horizontal", 54, 1, 57, 1))
sketch1.addConstraint(Sketcher.Constraint("Horizontal", 56, 2, 58, 1))
sketch1.addConstraint(Sketcher.Constraint("Horizontal", 57, 1, 60, 1))
sketch1.addConstraint(Sketcher.Constraint("Horizontal", 59, 2, 61, 1))
sketch1.addConstraint(Sketcher.Constraint("Horizontal", 60, 1, 63, 1))
sketch1.addConstraint(Sketcher.Constraint("Horizontal", 62, 2, 64, 1))
sketch1.addConstraint(Sketcher.Constraint("Horizontal", 63, 1, 66, 1))
sketch1.addConstraint(Sketcher.Constraint("Horizontal", 65, 2, 67, 1))
sketch1.addConstraint(Sketcher.Constraint("Horizontal", 66, 1, 69, 1))
sketch1.addConstraint(Sketcher.Constraint("Horizontal", 68, 2, 70, 1))
sketch1.addConstraint(Sketcher.Constraint("Horizontal", 69, 1, 72, 1))
sketch1.addConstraint(Sketcher.Constraint("Vertical", 52, 3, 16, 2))
sketch1.addConstraint(Sketcher.Constraint("Vertical", 13, 3, 46, 2))
sketch1.addConstraint(Sketcher.Constraint("Equal", 14, 18))
sketch1.addConstraint(Sketcher.Constraint("Equal", 11, 21))
sketch1.addConstraint(Sketcher.Constraint("Equal", 8, 24))
sketch1.addConstraint(Sketcher.Constraint("Equal", 24, 27))
sketch1.addConstraint(Sketcher.Constraint("Equal", 27, 30))
sketch1.addConstraint(Sketcher.Constraint("Equal", 30, 33))
sketch1.addConstraint(Sketcher.Constraint("Equal", 33, 36))
sketch1.addConstraint(Sketcher.Constraint("Equal", 6, 39))
sketch1.addConstraint(Sketcher.Constraint("Equal", 36, 43))
sketch1.addConstraint(Sketcher.Constraint("Equal", 16, 48))
sketch1.addConstraint(Sketcher.Constraint("Equal", 46, 50))
sketch1.addConstraint(Sketcher.Constraint("Equal", 43, 53))
sketch1.addConstraint(Sketcher.Constraint("Equal", 53, 56))
sketch1.addConstraint(Sketcher.Constraint("Equal", 56, 59))
sketch1.addConstraint(Sketcher.Constraint("Equal", 59, 62))
sketch1.addConstraint(Sketcher.Constraint("Equal", 62, 65))
sketch1.addConstraint(Sketcher.Constraint("Equal", 65, 68))
sketch1.addConstraint(Sketcher.Constraint("Equal", 68, 71))
sketch1.addConstraint(Sketcher.Constraint("Equal", 41, 15))
sketch1.addConstraint(Sketcher.Constraint("Equal", 7, 40))
sketch1.addConstraint(Sketcher.Constraint("Equal", 17, 47))
sketch1.addConstraint(Sketcher.Constraint("Radius", 10, Q("2 mm")))
sketch1.addConstraint(Sketcher.Constraint("Radius", 13, Q("2.5 mm")))
sketch1.addConstraint(Sketcher.Constraint("DistanceX", 4, 2, 4, 1, Q("2 mm")))
sketch1.addConstraint(Sketcher.Constraint("DistanceY", 5, 1, 5, 2, Q("6 mm")))
sketch1.addConstraint(Sketcher.Constraint("DistanceX", -1, 1, 4, 2, Q("3 mm")))
sketch1.addConstraint(Sketcher.Constraint("DistanceX", -1, 1, 19, 1, Q("70 mm")))
sketch1.addConstraint(Sketcher.Constraint("DistanceX", 1, 1, 1, 2, Q("77.12 mm")))
sketch1.addConstraint(Sketcher.Constraint("DistanceX", 16, 1, 16, 2, Q("68.58 mm")))
sketch1.addConstraint(Sketcher.Constraint("DistanceY", 0, 2, 0, 1, Q("39.56 mm")))
sketch1.addConstraint(Sketcher.Constraint("DistanceX", -1, 1, 35, 3, Q("29.4 mm")))
sketch1.addConstraint(Sketcher.Constraint("DistanceX", -1, 1, 10, 3, Q("14.16 mm")))
sketch1.addConstraint(Sketcher.Constraint("DistanceY", -1, 1, 10, 3, Q("22.32 mm")))
sketch1.addConstraint(Sketcher.Constraint("DistanceX", -1, 1, 13, 3, Q("6.54 mm")))
sketch1.addConstraint(Sketcher.Constraint("DistanceX", -1, 1, 45, 3, Q("10.35 mm")))
sketch1.addConstraint(Sketcher.Constraint("DistanceY", -1, 1, 45, 3, Q("35.02 mm")))
sketch1.addConstraint(Sketcher.Constraint("DistanceY", -1, 1, 4, 2, Q("7.89 mm")))
sketch1.addConstraint(Sketcher.Constraint("DistanceY", -1, 1, 8, 2, Q("23.32 mm")))
sketch1.addConstraint(Sketcher.Constraint("DistanceX", -1, 1, 39, 2, Q("72.12 mm")))
sketch1.addConstraint(Sketcher.Constraint("DistanceY", -1, 1, 39, 2, Q("25.67 mm")))
pad1 = body.newObject("PartDesign::Pad", "Pad")
pad1.Profile = sketch1
pad1.Length = 2

# Sketch on XY plane
sketch2 = body.newObject("Sketcher::SketchObject", "Sketch001")
sketch2.AttachmentSupport = (doc.getObject("XY_Plane"), [""])
sketch2.MapMode = "FlatFace"
add_polygon(sketch2, [(72.1, 31.7), (72.1, 25.7), (74.1, 25.7), (74.1, 31.7)])  # lines 0-3
sketch2.addConstraint(Sketcher.Constraint("Vertical", 0))
sketch2.addConstraint(Sketcher.Constraint("Horizontal", 1))
sketch2.addConstraint(Sketcher.Constraint("Vertical", 2))
sketch2.addConstraint(Sketcher.Constraint("Horizontal", 3))
sketch2.addConstraint(Sketcher.Constraint("DistanceX", 1, 1, 1, 2, Q("2 mm")))
sketch2.addConstraint(Sketcher.Constraint("DistanceY", 0, 2, 0, 1, Q("6 mm")))
sketch2.addConstraint(Sketcher.Constraint("DistanceX", -1, 1, 0, 2, Q("72.12 mm")))
sketch2.addConstraint(Sketcher.Constraint("DistanceY", -1, 1, 0, 2, Q("25.67 mm")))
pad2 = body.newObject("PartDesign::Pad", "Pad001")
pad2.Profile = sketch2
pad2.Type = "TwoLengths"
pad2.Length = 8
pad2.Length2 = 2
pad2.Reversed = True

# Sketch on XY plane
sketch3 = body.newObject("Sketcher::SketchObject", "Sketch002")
sketch3.AttachmentSupport = (doc.getObject("XY_Plane"), [""])
sketch3.MapMode = "FlatFace"
add_polygon(sketch3, [(3, 13.9), (3, 7.9), (5, 7.9), (5, 13.9)])  # lines 0-3
sketch3.addConstraint(Sketcher.Constraint("Vertical", 0))
sketch3.addConstraint(Sketcher.Constraint("Horizontal", 1))
sketch3.addConstraint(Sketcher.Constraint("Vertical", 2))
sketch3.addConstraint(Sketcher.Constraint("Horizontal", 3))
sketch3.addConstraint(Sketcher.Constraint("DistanceX", 1, 1, 1, 2, Q("2 mm")))
sketch3.addConstraint(Sketcher.Constraint("DistanceY", 0, 2, 0, 1, Q("6 mm")))
sketch3.addConstraint(Sketcher.Constraint("DistanceX", -1, 1, 0, 2, Q("3 mm")))
sketch3.addConstraint(Sketcher.Constraint("DistanceY", -1, 1, 0, 2, Q("7.89 mm")))
pad3 = body.newObject("PartDesign::Pad", "Pad002")
pad3.Profile = sketch3
pad3.Type = "TwoLengths"
pad3.Length = 8
pad3.Length2 = 2
pad3.Reversed = True

# Sketch on YZ plane
sketch4 = body.newObject("Sketcher::SketchObject", "Sketch003")
sketch4.AttachmentSupport = (doc.getObject("YZ_Plane"), [""])
sketch4.MapMode = "FlatFace"
sketch4.AttachmentOffset = App.Placement(Vector(0, 0, 5), App.Rotation())
add_polygon(sketch4, [(7.9, -5), (7.9, -8), (13.9, -8), (13.9, -5)])  # lines 0-3
sketch4.addConstraint(Sketcher.Constraint("Vertical", 0))
sketch4.addConstraint(Sketcher.Constraint("Horizontal", 1))
sketch4.addConstraint(Sketcher.Constraint("Vertical", 2))
sketch4.addConstraint(Sketcher.Constraint("Horizontal", 3))
sketch4.addConstraint(Sketcher.Constraint("DistanceX", 1, 1, 1, 2, Q("6 mm")))
sketch4.addConstraint(Sketcher.Constraint("DistanceY", 0, 2, 0, 1, Q("3 mm")))
sketch4.addConstraint(Sketcher.Constraint("DistanceY", 0, 2, -1, 1, Q("8 mm")))
sketch4.addConstraint(Sketcher.Constraint("DistanceX", -1, 1, 0, 2, Q("7.89 mm")))
pad4 = body.newObject("PartDesign::Pad", "Pad003")
pad4.Profile = sketch4
pad4.Length = 4
pad4.Reversed = True

# Sketch on YZ plane
sketch5 = body.newObject("Sketcher::SketchObject", "Sketch004")
sketch5.AttachmentSupport = (doc.getObject("YZ_Plane"), [""])
sketch5.MapMode = "FlatFace"
sketch5.AttachmentOffset = App.Placement(Vector(0, 0, 72.12), App.Rotation())
add_polygon(sketch5, [(31.7, -5), (31.7, -8), (25.7, -8), (25.7, -5)])  # lines 0-3
sketch5.addConstraint(Sketcher.Constraint("Vertical", 0))
sketch5.addConstraint(Sketcher.Constraint("Horizontal", 1))
sketch5.addConstraint(Sketcher.Constraint("Vertical", 2))
sketch5.addConstraint(Sketcher.Constraint("Horizontal", 3))
sketch5.addConstraint(Sketcher.Constraint("DistanceX", 1, 2, 1, 1, Q("6 mm")))
sketch5.addConstraint(Sketcher.Constraint("DistanceY", 0, 2, 0, 1, Q("3 mm")))
sketch5.addConstraint(Sketcher.Constraint("DistanceY", 0, 2, -1, 1, Q("8 mm")))
sketch5.addConstraint(Sketcher.Constraint("DistanceX", -1, 1, 0, 2, Q("31.67 mm")))
pad5 = body.newObject("PartDesign::Pad", "Pad004")
pad5.Profile = sketch5
pad5.Length = 4

doc.recompute()
